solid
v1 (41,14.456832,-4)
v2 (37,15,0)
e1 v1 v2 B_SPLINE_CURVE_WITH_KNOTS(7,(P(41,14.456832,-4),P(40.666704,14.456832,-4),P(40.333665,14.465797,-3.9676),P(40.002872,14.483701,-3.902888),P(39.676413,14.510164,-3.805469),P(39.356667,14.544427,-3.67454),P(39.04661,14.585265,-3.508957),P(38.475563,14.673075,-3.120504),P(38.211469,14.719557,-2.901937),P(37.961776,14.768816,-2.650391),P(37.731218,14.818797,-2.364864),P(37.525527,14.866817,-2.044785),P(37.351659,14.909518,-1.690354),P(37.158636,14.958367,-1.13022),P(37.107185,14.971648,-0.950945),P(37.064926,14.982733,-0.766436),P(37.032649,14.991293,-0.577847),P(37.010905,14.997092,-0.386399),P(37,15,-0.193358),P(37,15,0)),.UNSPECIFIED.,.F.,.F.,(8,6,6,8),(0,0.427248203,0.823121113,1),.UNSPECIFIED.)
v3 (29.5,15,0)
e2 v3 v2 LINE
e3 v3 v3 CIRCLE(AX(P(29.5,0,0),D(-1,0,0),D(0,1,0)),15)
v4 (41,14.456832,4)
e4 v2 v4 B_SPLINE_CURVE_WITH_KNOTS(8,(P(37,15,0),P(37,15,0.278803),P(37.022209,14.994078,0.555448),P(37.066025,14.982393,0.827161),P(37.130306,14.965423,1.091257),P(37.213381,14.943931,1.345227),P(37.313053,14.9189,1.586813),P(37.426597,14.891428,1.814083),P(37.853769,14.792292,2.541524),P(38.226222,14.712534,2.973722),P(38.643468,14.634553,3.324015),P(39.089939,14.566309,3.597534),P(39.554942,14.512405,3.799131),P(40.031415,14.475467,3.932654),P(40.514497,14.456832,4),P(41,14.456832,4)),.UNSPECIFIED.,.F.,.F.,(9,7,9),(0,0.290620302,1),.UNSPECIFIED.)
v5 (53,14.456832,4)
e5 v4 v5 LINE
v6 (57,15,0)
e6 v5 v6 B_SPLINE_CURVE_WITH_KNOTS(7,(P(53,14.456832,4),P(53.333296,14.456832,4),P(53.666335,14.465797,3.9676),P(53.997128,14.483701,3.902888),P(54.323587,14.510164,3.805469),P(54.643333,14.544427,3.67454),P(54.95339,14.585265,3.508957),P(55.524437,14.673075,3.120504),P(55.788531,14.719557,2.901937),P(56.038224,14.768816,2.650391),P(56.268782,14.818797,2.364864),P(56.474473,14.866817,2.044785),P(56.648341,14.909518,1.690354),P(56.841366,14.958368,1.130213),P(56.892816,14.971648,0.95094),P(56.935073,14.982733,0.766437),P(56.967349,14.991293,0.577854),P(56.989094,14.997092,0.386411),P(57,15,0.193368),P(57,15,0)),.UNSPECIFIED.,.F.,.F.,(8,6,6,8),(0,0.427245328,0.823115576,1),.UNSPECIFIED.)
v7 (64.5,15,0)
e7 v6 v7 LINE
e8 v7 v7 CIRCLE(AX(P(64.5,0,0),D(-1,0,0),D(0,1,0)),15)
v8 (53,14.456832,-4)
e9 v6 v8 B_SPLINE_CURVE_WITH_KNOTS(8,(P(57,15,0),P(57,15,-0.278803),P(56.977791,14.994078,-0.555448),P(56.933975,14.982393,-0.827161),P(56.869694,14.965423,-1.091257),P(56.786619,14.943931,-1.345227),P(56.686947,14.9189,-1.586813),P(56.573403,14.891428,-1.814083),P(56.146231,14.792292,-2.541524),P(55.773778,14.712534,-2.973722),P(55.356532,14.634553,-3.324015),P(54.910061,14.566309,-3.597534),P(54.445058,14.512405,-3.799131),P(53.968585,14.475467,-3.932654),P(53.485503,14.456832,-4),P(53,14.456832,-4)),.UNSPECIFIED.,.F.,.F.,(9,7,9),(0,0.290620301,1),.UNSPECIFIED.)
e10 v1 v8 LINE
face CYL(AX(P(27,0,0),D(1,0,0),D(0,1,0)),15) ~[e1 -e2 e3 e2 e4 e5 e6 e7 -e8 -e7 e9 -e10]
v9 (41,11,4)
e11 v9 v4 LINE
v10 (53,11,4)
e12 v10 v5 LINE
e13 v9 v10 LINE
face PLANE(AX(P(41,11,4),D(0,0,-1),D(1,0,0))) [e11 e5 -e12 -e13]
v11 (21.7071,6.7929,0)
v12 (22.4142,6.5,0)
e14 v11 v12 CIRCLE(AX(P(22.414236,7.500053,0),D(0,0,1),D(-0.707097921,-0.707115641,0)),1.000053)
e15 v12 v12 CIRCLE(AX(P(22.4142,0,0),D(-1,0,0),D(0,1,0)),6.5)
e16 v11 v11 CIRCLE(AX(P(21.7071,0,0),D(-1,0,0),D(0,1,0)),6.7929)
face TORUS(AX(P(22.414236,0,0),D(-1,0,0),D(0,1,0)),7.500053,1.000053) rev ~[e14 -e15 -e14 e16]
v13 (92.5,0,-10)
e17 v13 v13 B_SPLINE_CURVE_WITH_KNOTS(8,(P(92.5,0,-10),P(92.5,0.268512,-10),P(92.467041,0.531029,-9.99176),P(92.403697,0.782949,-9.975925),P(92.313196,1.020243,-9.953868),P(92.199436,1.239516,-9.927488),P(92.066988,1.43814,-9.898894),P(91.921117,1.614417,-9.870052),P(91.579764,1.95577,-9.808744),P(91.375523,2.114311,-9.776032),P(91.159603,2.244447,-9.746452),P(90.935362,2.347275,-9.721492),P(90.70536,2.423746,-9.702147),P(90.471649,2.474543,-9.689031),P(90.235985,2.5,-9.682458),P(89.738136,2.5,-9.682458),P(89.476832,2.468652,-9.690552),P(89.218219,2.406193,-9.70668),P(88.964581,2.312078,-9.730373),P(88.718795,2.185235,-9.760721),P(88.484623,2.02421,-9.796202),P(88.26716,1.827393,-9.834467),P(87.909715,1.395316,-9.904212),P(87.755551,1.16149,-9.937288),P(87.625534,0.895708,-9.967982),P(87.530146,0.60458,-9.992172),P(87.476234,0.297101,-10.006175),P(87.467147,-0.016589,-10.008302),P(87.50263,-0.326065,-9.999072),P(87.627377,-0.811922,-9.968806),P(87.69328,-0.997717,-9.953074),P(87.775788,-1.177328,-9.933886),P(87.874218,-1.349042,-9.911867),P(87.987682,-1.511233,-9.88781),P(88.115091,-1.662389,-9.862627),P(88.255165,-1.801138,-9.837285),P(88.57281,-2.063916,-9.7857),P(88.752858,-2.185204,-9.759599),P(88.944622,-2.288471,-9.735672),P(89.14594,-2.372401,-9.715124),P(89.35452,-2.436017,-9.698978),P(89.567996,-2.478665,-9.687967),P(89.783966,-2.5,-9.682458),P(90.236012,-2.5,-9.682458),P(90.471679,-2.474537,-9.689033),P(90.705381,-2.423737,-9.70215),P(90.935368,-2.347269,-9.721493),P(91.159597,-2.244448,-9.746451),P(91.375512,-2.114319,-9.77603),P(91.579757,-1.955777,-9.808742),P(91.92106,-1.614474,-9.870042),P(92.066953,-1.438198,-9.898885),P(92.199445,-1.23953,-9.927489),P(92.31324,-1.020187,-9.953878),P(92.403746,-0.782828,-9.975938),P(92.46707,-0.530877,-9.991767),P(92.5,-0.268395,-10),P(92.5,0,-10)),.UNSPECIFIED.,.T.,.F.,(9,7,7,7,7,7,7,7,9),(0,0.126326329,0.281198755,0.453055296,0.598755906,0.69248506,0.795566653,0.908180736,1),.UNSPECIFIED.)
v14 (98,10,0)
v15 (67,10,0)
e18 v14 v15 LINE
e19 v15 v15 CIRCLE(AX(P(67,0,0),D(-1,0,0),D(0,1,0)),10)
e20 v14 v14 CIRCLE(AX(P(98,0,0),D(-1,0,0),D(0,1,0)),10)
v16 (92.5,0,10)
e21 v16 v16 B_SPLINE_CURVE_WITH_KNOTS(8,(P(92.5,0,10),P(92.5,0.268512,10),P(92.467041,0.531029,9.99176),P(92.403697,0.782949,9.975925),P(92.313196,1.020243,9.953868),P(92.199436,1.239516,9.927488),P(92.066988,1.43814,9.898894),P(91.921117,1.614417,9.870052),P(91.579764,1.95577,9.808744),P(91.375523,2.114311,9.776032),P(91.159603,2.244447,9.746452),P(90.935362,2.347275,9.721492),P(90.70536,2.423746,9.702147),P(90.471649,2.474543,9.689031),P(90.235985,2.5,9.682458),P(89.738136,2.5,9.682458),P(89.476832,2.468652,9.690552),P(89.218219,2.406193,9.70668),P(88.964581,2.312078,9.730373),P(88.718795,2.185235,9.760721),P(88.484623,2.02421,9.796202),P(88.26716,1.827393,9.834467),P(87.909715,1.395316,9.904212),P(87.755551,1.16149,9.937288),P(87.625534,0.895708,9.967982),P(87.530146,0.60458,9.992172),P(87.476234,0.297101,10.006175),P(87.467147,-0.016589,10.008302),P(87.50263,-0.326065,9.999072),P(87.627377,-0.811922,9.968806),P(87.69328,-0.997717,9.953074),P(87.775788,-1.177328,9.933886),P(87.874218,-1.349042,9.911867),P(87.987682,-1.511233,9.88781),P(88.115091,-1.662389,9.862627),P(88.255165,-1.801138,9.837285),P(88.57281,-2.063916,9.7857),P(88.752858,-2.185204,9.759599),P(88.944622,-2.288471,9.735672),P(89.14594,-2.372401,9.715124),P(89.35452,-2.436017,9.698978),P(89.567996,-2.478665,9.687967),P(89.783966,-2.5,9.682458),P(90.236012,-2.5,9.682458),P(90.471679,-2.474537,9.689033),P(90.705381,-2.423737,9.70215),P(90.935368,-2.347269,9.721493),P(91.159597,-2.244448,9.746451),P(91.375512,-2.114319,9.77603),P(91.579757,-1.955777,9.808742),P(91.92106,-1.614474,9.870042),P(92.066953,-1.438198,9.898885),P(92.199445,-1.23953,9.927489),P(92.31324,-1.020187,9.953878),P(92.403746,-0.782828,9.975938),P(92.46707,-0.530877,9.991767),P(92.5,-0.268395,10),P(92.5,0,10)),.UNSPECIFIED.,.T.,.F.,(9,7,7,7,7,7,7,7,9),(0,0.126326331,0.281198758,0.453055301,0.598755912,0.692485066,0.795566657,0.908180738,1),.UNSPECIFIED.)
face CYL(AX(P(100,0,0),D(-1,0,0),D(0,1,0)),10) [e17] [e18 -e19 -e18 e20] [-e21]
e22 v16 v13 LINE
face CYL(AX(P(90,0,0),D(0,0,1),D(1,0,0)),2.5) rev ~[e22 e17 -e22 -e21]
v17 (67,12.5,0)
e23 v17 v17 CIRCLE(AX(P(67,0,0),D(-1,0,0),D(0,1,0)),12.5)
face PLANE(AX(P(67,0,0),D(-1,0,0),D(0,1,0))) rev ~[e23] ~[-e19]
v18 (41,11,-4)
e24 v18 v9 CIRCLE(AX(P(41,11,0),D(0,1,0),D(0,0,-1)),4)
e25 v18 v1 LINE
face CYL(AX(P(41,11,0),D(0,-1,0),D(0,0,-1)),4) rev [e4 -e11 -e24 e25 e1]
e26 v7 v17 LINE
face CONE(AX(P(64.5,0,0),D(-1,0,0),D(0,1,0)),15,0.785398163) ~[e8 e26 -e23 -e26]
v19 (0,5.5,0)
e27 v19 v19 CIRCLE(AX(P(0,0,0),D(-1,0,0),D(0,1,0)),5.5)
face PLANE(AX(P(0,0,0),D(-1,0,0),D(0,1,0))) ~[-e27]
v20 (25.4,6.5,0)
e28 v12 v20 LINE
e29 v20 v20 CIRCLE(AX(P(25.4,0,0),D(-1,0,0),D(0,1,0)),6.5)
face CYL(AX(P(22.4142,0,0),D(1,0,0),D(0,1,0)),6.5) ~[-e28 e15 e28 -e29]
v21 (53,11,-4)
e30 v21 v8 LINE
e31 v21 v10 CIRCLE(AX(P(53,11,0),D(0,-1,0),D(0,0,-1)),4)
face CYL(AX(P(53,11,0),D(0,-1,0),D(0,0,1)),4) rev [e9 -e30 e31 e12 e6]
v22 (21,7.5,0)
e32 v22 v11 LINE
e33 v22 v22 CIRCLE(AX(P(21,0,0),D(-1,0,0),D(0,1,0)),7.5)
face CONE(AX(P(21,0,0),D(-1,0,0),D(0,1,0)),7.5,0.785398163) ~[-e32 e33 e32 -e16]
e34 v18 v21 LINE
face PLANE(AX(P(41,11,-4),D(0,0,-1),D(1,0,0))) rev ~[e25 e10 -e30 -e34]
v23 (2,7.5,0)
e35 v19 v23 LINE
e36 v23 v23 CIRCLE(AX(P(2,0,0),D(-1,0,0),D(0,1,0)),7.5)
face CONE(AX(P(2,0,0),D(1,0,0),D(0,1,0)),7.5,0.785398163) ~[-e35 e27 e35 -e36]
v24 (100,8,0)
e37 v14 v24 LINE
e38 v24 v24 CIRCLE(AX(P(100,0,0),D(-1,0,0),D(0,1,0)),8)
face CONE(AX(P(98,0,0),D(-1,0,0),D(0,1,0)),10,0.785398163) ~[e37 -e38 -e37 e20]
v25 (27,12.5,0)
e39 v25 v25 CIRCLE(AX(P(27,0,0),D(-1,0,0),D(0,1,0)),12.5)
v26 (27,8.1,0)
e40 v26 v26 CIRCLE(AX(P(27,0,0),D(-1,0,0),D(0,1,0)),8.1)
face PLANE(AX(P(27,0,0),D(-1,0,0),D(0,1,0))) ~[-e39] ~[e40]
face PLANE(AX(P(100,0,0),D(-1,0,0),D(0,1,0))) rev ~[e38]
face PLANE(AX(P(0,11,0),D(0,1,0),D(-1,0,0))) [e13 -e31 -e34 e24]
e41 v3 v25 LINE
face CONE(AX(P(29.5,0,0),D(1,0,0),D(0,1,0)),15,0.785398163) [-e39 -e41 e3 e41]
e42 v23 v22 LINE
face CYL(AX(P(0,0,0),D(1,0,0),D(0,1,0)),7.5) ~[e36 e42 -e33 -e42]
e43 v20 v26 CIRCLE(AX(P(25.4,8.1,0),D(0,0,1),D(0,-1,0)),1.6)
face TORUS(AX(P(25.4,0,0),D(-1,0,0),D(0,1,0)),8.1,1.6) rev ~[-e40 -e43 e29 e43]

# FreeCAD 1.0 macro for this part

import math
import FreeCAD as App
import Part
import Sketcher
from FreeCAD import Vector
Q = App.Units.Quantity


def edges_at(feature, points):
    """Names of the edges that pass closest to the given points."""
    edges = feature.Shape.Edges
    near = lambda p: min(range(len(edges)), key=lambda i: edges[i].distToShape(Part.Vertex(*p))[0])
    return sorted({f"Edge{near(p) + 1}" for p in points})

doc = App.newDocument("Part")
body = doc.addObject("PartDesign::Body", "Body")

# Sketch on XY plane
sketch1 = body.newObject("Sketcher::SketchObject", "Sketch")
sketch1.AttachmentSupport = (doc.getObject("XY_Plane"), [""])
sketch1.MapMode = "FlatFace"
sketch1.addGeometry(Part.LineSegment(Vector(0, 7.5, 0), Vector(0, 0, 0)), False)
sketch1.addGeometry(Part.LineSegment(Vector(0, 0, 0), Vector(100, 0, 0)), False)
sketch1.addGeometry(Part.LineSegment(Vector(100, 0, 0), Vector(100, 10, 0)), False)
sketch1.addGeometry(Part.LineSegment(Vector(100, 10, 0), Vector(67, 10, 0)), False)
sketch1.addGeometry(Part.LineSegment(Vector(67, 10, 0), Vector(67, 15, 0)), False)
sketch1.addGeometry(Part.LineSegment(Vector(67, 15, 0), Vector(27, 15, 0)), False)
sketch1.addGeometry(Part.LineSegment(Vector(27, 15, 0), Vector(27, 8.1, 0)), False)
sketch1.addGeometry(Part.ArcOfCircle(Part.Circle(Vector(25.4, 8.1, 0), Vector(0, 0, 1), 1.6), math.radians(-90), math.radians(0)), False)
sketch1.addGeometry(Part.LineSegment(Vector(25.4, 6.5, 0), Vector(22.4, 6.5, 0)), False)
sketch1.addGeometry(Part.ArcOfCircle(Part.Circle(Vector(22.4, 7.5, 0), Vector(0, 0, 1), 1), math.radians(-135), math.radians(-90)), False)
sketch1.addGeometry(Part.LineSegment(Vector(21.7, 6.8, 0), Vector(21, 7.5, 0)), False)
sketch1.addGeometry(Part.LineSegment(Vector(21, 7.5, 0), Vector(0, 7.5, 0)), False)
sketch1.addConstraint(Sketcher.Constraint("Coincident", 0, 2, 1, 1))
sketch1.addConstraint(Sketcher.Constraint("Coincident", 1, 2, 2, 1))
sketch1.addConstraint(Sketcher.Constraint("Coincident", 2, 2, 3, 1))
sketch1.addConstraint(Sketcher.Constraint("Coincident", 3, 2, 4, 1))
sketch1.addConstraint(Sketcher.Constraint("Coincident", 4, 2, 5, 1))
sketch1.addConstraint(Sketcher.Constraint("Coincident", 5, 2, 6, 1))
sketch1.addConstraint(Sketcher.Constraint("Tangent", 6, 2, 7, 2))
sketch1.addConstraint(Sketcher.Constraint("Tangent", 7, 1, 8, 1))
sketch1.addConstraint(Sketcher.Constraint("Tangent", 8, 2, 9, 2))
sketch1.addConstraint(Sketcher.Constraint("Tangent", 9, 1, 10, 1))
sketch1.addConstraint(Sketcher.Constraint("Coincident", 10, 2, 11, 1))
sketch1.addConstraint(Sketcher.Constraint("Coincident", 11, 2, 0, 1))
sketch1.addConstraint(Sketcher.Constraint("Vertical", 0))
sketch1.addConstraint(Sketcher.Constraint("Horizontal", 1))
sketch1.addConstraint(Sketcher.Constraint("Vertical", 2))
sketch1.addConstraint(Sketcher.Constraint("Horizontal", 3))
sketch1.addConstraint(Sketcher.Constraint("Vertical", 4))
sketch1.addConstraint(Sketcher.Constraint("Horizontal", 5))
sketch1.addConstraint(Sketcher.Constraint("Vertical", 6))
sketch1.addConstraint(Sketcher.Constraint("Horizontal", 8))
sketch1.addConstraint(Sketcher.Constraint("Horizontal", 11))
sketch1.addConstraint(Sketcher.Constraint("Coincident", 0, 2, -1, 1))
sketch1.addConstraint(Sketcher.Constraint("Horizontal", 9, 3, 10, 2))
sketch1.addConstraint(Sketcher.Constraint("Radius", 9, Q("1 mm")))
sketch1.addConstraint(Sketcher.Constraint("Radius", 7, Q("1.6 mm")))
sketch1.addConstraint(Sketcher.Constraint("DistanceX", 1, 1, 1, 2, Q("100 mm")))
sketch1.addConstraint(Sketcher.Constraint("DistanceX", 5, 2, 5, 1, Q("40 mm")))
sketch1.addConstraint(Sketcher.Constraint("DistanceY", 2, 1, 2, 2, Q("10 mm")))
sketch1.addConstraint(Sketcher.Constraint("DistanceY", 4, 1, 4, 2, Q("5 mm")))
sketch1.addConstraint(Sketcher.Constraint("Angle", 10, Q("135 deg")))
sketch1.addConstraint(Sketcher.Constraint("DistanceX", -1, 1, 5, 2, Q("27 mm")))
sketch1.addConstraint(Sketcher.Constraint("DistanceY", -1, 1, 7, 1, Q("6.5 mm")))
sketch1.addConstraint(Sketcher.Constraint("DistanceX", 11, 2, 11, 1, Q("21 mm")))
revolution = body.newObject("PartDesign::Revolution", "Revolution")
revolution.Profile = sketch1
revolution.ReferenceAxis = (sketch1, ["H_Axis"])
revolution.Angle = 360

# Sketch on XY plane
sketch2 = body.newObject("Sketcher::SketchObject", "Sketch001")
sketch2.AttachmentSupport = (doc.getObject("XY_Plane"), [""])
sketch2.MapMode = "FlatFace"
sketch2.addGeometry(Part.Circle(Vector(90, 0, 0), Vector(0, 0, 1), 2.5), False)
sketch2.addConstraint(Sketcher.Constraint("PointOnObject", 0, 3, -1))
sketch2.addConstraint(Sketcher.Constraint("Diameter", 0, Q("5 mm")))
sketch2.addConstraint(Sketcher.Constraint("DistanceX", -1, 1, 0, 3, Q("90 mm")))
pocket1 = body.newObject("PartDesign::Pocket", "Pocket")
pocket1.Profile = sketch2
pocket1.Type = "ThroughAll"
pocket1.Midplane = True
doc.recompute()

chamfer = body.newObject("PartDesign::Chamfer", "Chamfer")
chamfer.Base = (pocket1, edges_at(pocket1, [(0, -7.5, 0)]))
chamfer.Size = 2
doc.recompute()

chamfer2 = body.newObject("PartDesign::Chamfer", "Chamfer001")
chamfer2.Base = (chamfer, edges_at(chamfer, [(67, -15, 0)]))
chamfer2.Size = 2.5
doc.recompute()

chamfer3 = body.newObject("PartDesign::Chamfer", "Chamfer002")
chamfer3.Base = (chamfer2, edges_at(chamfer2, [(100, -10, 0)]))
chamfer3.Size = 2
doc.recompute()

chamfer4 = body.newObject("PartDesign::Chamfer", "Chamfer003")
chamfer4.Base = (chamfer3, edges_at(chamfer3, [(27, -15, 0)]))
chamfer4.Size = 2.5

# Sketch on XZ plane
sketch3 = body.newObject("Sketcher::SketchObject", "Sketch002")
sketch3.AttachmentSupport = (doc.getObject("XZ_Plane"), [""])
sketch3.MapMode = "FlatFace"
sketch3.AttachmentOffset = App.Placement(Vector(0, 0, -11), App.Rotation())
sketch3.addGeometry(Part.ArcOfCircle(Part.Circle(Vector(41, 0, 0), Vector(0, 0, 1), 4), math.radians(90), math.radians(270)), False)
sketch3.addGeometry(Part.LineSegment(Vector(41, 4, 0), Vector(53, 4, 0)), False)
sketch3.addGeometry(Part.ArcOfCircle(Part.Circle(Vector(53, 0, 0), Vector(0, 0, 1), 4), math.radians(-90), math.radians(90)), False)
sketch3.addGeometry(Part.LineSegment(Vector(53, -4, 0), Vector(41, -4, 0)), False)
sketch3.addConstraint(Sketcher.Constraint("Tangent", 0, 1, 1, 1))
sketch3.addConstraint(Sketcher.Constraint("Tangent", 1, 2, 2, 2))
sketch3.addConstraint(Sketcher.Constraint("Tangent", 2, 1, 3, 1))
sketch3.addConstraint(Sketcher.Constraint("Tangent", 3, 2, 0, 2))
sketch3.addConstraint(Sketcher.Constraint("Horizontal", 1))
sketch3.addConstraint(Sketcher.Constraint("Horizontal", 3))
sketch3.addConstraint(Sketcher.Constraint("PointOnObject", 0, 3, -1))
sketch3.addConstraint(Sketcher.Constraint("Radius", 0, Q("4 mm")))
sketch3.addConstraint(Sketcher.Constraint("DistanceX", 1, 1, 1, 2, Q("12 mm")))
sketch3.addConstraint(Sketcher.Constraint("DistanceX", -1, 1, 0, 3, Q("41 mm")))
pocket2 = body.newObject("PartDesign::Pocket", "Pocket001")
pocket2.Profile = sketch3
pocket2.Length = 4

doc.recompute()
